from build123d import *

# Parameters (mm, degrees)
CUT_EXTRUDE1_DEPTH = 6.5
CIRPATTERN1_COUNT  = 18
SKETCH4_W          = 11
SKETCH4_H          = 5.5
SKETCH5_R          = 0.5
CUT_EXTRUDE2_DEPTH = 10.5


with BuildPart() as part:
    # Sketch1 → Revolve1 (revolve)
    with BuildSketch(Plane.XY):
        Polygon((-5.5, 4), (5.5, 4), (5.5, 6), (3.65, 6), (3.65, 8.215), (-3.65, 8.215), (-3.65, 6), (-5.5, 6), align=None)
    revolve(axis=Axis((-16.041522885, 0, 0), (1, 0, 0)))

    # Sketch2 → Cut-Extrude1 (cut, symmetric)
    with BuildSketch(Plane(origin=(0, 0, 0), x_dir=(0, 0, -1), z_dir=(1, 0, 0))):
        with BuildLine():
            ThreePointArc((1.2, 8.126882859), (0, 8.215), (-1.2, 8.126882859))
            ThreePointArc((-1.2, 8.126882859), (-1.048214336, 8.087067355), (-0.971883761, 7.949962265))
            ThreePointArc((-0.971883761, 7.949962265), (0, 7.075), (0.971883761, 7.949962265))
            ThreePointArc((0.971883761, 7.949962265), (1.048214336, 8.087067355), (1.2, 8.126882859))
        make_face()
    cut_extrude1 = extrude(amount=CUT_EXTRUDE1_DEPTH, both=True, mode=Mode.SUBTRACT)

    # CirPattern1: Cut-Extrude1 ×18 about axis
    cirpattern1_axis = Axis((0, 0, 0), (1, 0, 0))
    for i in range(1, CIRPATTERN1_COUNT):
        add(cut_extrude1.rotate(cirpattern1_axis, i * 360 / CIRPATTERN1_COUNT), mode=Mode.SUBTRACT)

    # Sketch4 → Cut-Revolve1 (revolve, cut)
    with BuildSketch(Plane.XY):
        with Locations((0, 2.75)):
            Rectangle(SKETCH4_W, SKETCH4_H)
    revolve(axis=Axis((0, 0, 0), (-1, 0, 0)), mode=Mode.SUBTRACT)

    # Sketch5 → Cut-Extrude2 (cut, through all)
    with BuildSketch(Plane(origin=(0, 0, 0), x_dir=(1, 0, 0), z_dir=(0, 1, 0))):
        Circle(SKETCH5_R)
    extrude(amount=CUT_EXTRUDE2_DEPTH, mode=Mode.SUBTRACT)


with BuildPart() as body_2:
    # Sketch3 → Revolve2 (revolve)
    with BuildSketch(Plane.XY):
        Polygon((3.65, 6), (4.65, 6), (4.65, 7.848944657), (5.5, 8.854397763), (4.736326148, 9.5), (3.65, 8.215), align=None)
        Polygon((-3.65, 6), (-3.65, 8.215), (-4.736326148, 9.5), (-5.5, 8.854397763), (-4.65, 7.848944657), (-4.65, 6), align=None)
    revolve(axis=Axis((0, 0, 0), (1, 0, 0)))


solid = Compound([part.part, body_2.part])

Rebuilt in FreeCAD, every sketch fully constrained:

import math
import FreeCAD as App
import Part
import Sketcher
from FreeCAD import Vector
Q = App.Units.Quantity

doc = App.newDocument("Part")
body = doc.addObject("PartDesign::Body", "Body")

# Sketch on XY plane
sketch1 = body.newObject("Sketcher::SketchObject", "Sketch")
sketch1.AttachmentSupport = (doc.getObject("XY_Plane"), [""])
sketch1.MapMode = "FlatFace"
sketch1.addGeometry([
    Part.LineSegment(Vector(-5.5, 4, 0), Vector(5.5, 4, 0)),  # 0
    Part.LineSegment(Vector(5.5, 4, 0), Vector(5.5, 6, 0)),  # 1
    Part.LineSegment(Vector(5.5, 6, 0), Vector(3.65, 6, 0)),  # 2
    Part.LineSegment(Vector(3.65, 6, 0), Vector(3.65, 8.215, 0)),  # 3
    Part.LineSegment(Vector(3.65, 8.215, 0), Vector(-3.65, 8.215, 0)),  # 4
    Part.LineSegment(Vector(-3.65, 8.215, 0), Vector(-3.65, 6, 0)),  # 5
    Part.LineSegment(Vector(-3.65, 6, 0), Vector(-5.5, 6, 0)),  # 6
    Part.LineSegment(Vector(-5.5, 6, 0), Vector(-5.5, 4, 0)),  # 7
], False)
sketch1.addConstraint([
    Sketcher.Constraint("Coincident", 0, 2, 1, 1),
    Sketcher.Constraint("Coincident", 1, 2, 2, 1),
    Sketcher.Constraint("Coincident", 2, 2, 3, 1),
    Sketcher.Constraint("Coincident", 3, 2, 4, 1),
    Sketcher.Constraint("Coincident", 4, 2, 5, 1),
    Sketcher.Constraint("Coincident", 5, 2, 6, 1),
    Sketcher.Constraint("Coincident", 6, 2, 7, 1),
    Sketcher.Constraint("Coincident", 7, 2, 0, 1),
    Sketcher.Constraint("Horizontal", 0),
    Sketcher.Constraint("Vertical", 1),
    Sketcher.Constraint("Horizontal", 2),
    Sketcher.Constraint("Vertical", 3),
    Sketcher.Constraint("Horizontal", 4),
    Sketcher.Constraint("Vertical", 5),
    Sketcher.Constraint("Horizontal", 6),
    Sketcher.Constraint("Vertical", 7),
    Sketcher.Constraint("Symmetric", 2, 2, 5, 2, -2),
    Sketcher.Constraint("Equal", 2, 6),
    Sketcher.Constraint("DistanceX", 0, 1, 0, 2, Q("11 mm")),
    Sketcher.Constraint("DistanceY", 1, 1, 1, 2, Q("2 mm")),
    Sketcher.Constraint("DistanceX", 4, 2, 4, 1, Q("7.3 mm")),
    Sketcher.Constraint("DistanceY", -1, 1, 0, 2, Q("4 mm")),
    Sketcher.Constraint("DistanceY", 3, 1, 3, 2, Q("2.215 mm")),
])
revolution = body.newObject("PartDesign::Revolution", "Revolution")
revolution.Profile = sketch1
revolution.ReferenceAxis = (sketch1, ["H_Axis"])
revolution.Angle = 360

# Sketch on YZ plane
sketch2 = body.newObject("Sketcher::SketchObject", "Sketch001")
sketch2.AttachmentSupport = (doc.getObject("YZ_Plane"), [""])
sketch2.MapMode = "FlatFace"
sketch2.addGeometry([
    Part.ArcOfCircle(Part.Circle(Vector(0, 0, 0), Vector(0, 0, 1), 8.215), math.radians(-8.399492), math.radians(8.399492)),
    Part.ArcOfCircle(Part.Circle(Vector(7.929028, 1.170785, 0), Vector(0, 0, 1), 0.2), math.radians(-83.991808), math.radians(8.399492)),
    Part.ArcOfCircle(Part.Circle(Vector(8.052252, 0, 0), Vector(0, 0, 1), 0.977252), math.radians(96.008192), math.radians(263.991808)),
    Part.ArcOfCircle(Part.Circle(Vector(7.929028, -1.170785, 0), Vector(0, 0, 1), 0.2), math.radians(-8.399492), math.radians(83.991808)),
], False)
sketch2.addConstraint([
    Sketcher.Constraint("Tangent", 0, 2, 1, 2),
    Sketcher.Constraint("Tangent", 1, 1, 2, 1),
    Sketcher.Constraint("Tangent", 2, 2, 3, 2),
    Sketcher.Constraint("Tangent", 3, 1, 0, 1),
    Sketcher.Constraint("Coincident", 0, 3, -1, 1),
    Sketcher.Constraint("Equal", 1, 3),
    Sketcher.Constraint("PointOnObject", 2, 3, -1),
    Sketcher.Constraint("Radius", 1, Q("0.2 mm")),
    Sketcher.Constraint("Radius", 0, Q("8.215 mm")),
    Sketcher.Constraint("DistanceY", -1, 1, 0, 2, Q("1.2 mm")),
    Sketcher.Constraint("Radius", 2, Q("0.977252 mm")),
])
pocket1 = body.newObject("PartDesign::Pocket", "Pocket")
pocket1.Profile = sketch2
pocket1.Length = 13
pocket1.Midplane = True
doc.recompute()

polarpattern = body.newObject("PartDesign::PolarPattern", "PolarPattern")
polarpattern.Originals = [pocket1]
polarpattern.Axis = (doc.getObject("X_Axis"), [""])
polarpattern.Angle = 360
polarpattern.Occurrences = 18
body.Tip = polarpattern

# Sketch on XY plane
sketch3 = body.newObject("Sketcher::SketchObject", "Sketch002")
sketch3.AttachmentSupport = (doc.getObject("XY_Plane"), [""])
sketch3.MapMode = "FlatFace"
sketch3.addGeometry([
    Part.LineSegment(Vector(-5.5, 5.5, 0), Vector(-5.5, 0, 0)),
    Part.LineSegment(Vector(-5.5, 0, 0), Vector(5.5, 0, 0)),
    Part.LineSegment(Vector(5.5, 0, 0), Vector(5.5, 5.5, 0)),
    Part.LineSegment(Vector(5.5, 5.5, 0), Vector(-5.5, 5.5, 0)),
], False)
sketch3.addConstraint([
    Sketcher.Constraint("Coincident", 0, 2, 1, 1),
    Sketcher.Constraint("Coincident", 1, 2, 2, 1),
    Sketcher.Constraint("Coincident", 2, 2, 3, 1),
    Sketcher.Constraint("Coincident", 3, 2, 0, 1),
    Sketcher.Constraint("Vertical", 0),
    Sketcher.Constraint("Horizontal", 1),
    Sketcher.Constraint("Vertical", 2),
    Sketcher.Constraint("Horizontal", 3),
    Sketcher.Constraint("Symmetric", 0, 2, 1, 2, -1, 1),
    Sketcher.Constraint("DistanceX", 1, 1, 1, 2, Q("11 mm")),
    Sketcher.Constraint("DistanceY", 0, 2, 0, 1, Q("5.5 mm")),
])
groove = body.newObject("PartDesign::Groove", "Groove")
groove.Profile = sketch3
groove.ReferenceAxis = (sketch3, ["H_Axis"])
groove.Angle = 360

# Sketch on XZ plane
sketch4 = body.newObject("Sketcher::SketchObject", "Sketch003")
sketch4.AttachmentSupport = (doc.getObject("XZ_Plane"), [""])
sketch4.MapMode = "FlatFace"
sketch4.addGeometry(Part.Circle(Vector(0, 0, 0), Vector(0, 0, 1), 0.5), False)
sketch4.addConstraint([
    Sketcher.Constraint("Coincident", 0, 3, -1, 1),
    Sketcher.Constraint("Diameter", 0, Q("1 mm")),
])
pocket2 = body.newObject("PartDesign::Pocket", "Pocket001")
pocket2.Profile = sketch4
pocket2.Type = "ThroughAll"
body2 = doc.addObject("PartDesign::Body", "Body001")
body2.AllowCompound = True

# Sketch on XY plane
sketch5 = body2.newObject("Sketcher::SketchObject", "Sketch004")
sketch5.AttachmentSupport = (doc.getObject("XY_Plane001"), [""])
sketch5.MapMode = "FlatFace"
sketch5.addGeometry([
    Part.LineSegment(Vector(3.65, 6, 0), Vector(4.65, 6, 0)),  # 0
    Part.LineSegment(Vector(4.65, 6, 0), Vector(4.65, 7.848945, 0)),  # 1
    Part.LineSegment(Vector(4.65, 7.848945, 0), Vector(5.5, 8.854398, 0)),  # 2
    Part.LineSegment(Vector(5.5, 8.854398, 0), Vector(4.736326, 9.5, 0)),  # 3
    Part.LineSegment(Vector(4.736326, 9.5, 0), Vector(3.65, 8.215, 0)),  # 4
    Part.LineSegment(Vector(3.65, 8.215, 0), Vector(3.65, 6, 0)),  # 5
    Part.LineSegment(Vector(-3.65, 6, 0), Vector(-3.65, 8.215, 0)),  # 6
    Part.LineSegment(Vector(-3.65, 8.215, 0), Vector(-4.736326, 9.5, 0)),  # 7
    Part.LineSegment(Vector(-4.736326, 9.5, 0), Vector(-5.5, 8.854398, 0)),  # 8
    Part.LineSegment(Vector(-5.5, 8.854398, 0), Vector(-4.65, 7.848945, 0)),  # 9
    Part.LineSegment(Vector(-4.65, 7.848945, 0), Vector(-4.65, 6, 0)),  # 10
    Part.LineSegment(Vector(-4.65, 6, 0), Vector(-3.65, 6, 0)),  # 11
], False)
sketch5.addConstraint([
    Sketcher.Constraint("Coincident", 0, 2, 1, 1),
    Sketcher.Constraint("Coincident", 1, 2, 2, 1),
    Sketcher.Constraint("Coincident", 2, 2, 3, 1),
    Sketcher.Constraint("Coincident", 3, 2, 4, 1),
    Sketcher.Constraint("Coincident", 4, 2, 5, 1),
    Sketcher.Constraint("Coincident", 5, 2, 0, 1),
    Sketcher.Constraint("Coincident", 6, 2, 7, 1),
    Sketcher.Constraint("Coincident", 7, 2, 8, 1),
    Sketcher.Constraint("Coincident", 8, 2, 9, 1),
    Sketcher.Constraint("Coincident", 9, 2, 10, 1),
    Sketcher.Constraint("Coincident", 10, 2, 11, 1),
    Sketcher.Constraint("Coincident", 11, 2, 6, 1),
    Sketcher.Constraint("Horizontal", 0),
    Sketcher.Constraint("Vertical", 1),
    Sketcher.Constraint("Vertical", 5),
    Sketcher.Constraint("Vertical", 6),
    Sketcher.Constraint("Vertical", 10),
    Sketcher.Constraint("Horizontal", 11),
    Sketcher.Constraint("Symmetric", 4, 2, 6, 2, -2),
    Sketcher.Constraint("Symmetric", 3, 2, 7, 2, -2),
    Sketcher.Constraint("Symmetric", 2, 2, 8, 2, -2),
    Sketcher.Constraint("Symmetric", 1, 2, 9, 2, -2),
    Sketcher.Constraint("Perpendicular", 2, 3),
    Sketcher.Constraint("Perpendicular", 3, 4),
    Sketcher.Constraint("Horizontal", 5, 2, 10, 2),
    Sketcher.Constraint("DistanceX", 0, 1, 0, 2, Q("1 mm")),
    Sketcher.Constraint("Distance", 3, Q("1 mm")),
    Sketcher.Constraint("DistanceY", -1, 1, 0, 2, Q("6 mm")),
    Sketcher.Constraint("DistanceX", -1, 1, 2, 2, Q("5.5 mm")),
    Sketcher.Constraint("DistanceY", -1, 1, 3, 2, Q("9.5 mm")),
    Sketcher.Constraint("DistanceX", 6, 2, 4, 2, Q("7.3 mm")),
    Sketcher.Constraint("DistanceY", 5, 2, 5, 1, Q("2.215 mm")),
])
revolution2 = body2.newObject("PartDesign::Revolution", "Revolution001")
revolution2.Profile = sketch5
revolution2.ReferenceAxis = (sketch5, ["H_Axis"])
revolution2.Angle = 360

doc.recompute()
